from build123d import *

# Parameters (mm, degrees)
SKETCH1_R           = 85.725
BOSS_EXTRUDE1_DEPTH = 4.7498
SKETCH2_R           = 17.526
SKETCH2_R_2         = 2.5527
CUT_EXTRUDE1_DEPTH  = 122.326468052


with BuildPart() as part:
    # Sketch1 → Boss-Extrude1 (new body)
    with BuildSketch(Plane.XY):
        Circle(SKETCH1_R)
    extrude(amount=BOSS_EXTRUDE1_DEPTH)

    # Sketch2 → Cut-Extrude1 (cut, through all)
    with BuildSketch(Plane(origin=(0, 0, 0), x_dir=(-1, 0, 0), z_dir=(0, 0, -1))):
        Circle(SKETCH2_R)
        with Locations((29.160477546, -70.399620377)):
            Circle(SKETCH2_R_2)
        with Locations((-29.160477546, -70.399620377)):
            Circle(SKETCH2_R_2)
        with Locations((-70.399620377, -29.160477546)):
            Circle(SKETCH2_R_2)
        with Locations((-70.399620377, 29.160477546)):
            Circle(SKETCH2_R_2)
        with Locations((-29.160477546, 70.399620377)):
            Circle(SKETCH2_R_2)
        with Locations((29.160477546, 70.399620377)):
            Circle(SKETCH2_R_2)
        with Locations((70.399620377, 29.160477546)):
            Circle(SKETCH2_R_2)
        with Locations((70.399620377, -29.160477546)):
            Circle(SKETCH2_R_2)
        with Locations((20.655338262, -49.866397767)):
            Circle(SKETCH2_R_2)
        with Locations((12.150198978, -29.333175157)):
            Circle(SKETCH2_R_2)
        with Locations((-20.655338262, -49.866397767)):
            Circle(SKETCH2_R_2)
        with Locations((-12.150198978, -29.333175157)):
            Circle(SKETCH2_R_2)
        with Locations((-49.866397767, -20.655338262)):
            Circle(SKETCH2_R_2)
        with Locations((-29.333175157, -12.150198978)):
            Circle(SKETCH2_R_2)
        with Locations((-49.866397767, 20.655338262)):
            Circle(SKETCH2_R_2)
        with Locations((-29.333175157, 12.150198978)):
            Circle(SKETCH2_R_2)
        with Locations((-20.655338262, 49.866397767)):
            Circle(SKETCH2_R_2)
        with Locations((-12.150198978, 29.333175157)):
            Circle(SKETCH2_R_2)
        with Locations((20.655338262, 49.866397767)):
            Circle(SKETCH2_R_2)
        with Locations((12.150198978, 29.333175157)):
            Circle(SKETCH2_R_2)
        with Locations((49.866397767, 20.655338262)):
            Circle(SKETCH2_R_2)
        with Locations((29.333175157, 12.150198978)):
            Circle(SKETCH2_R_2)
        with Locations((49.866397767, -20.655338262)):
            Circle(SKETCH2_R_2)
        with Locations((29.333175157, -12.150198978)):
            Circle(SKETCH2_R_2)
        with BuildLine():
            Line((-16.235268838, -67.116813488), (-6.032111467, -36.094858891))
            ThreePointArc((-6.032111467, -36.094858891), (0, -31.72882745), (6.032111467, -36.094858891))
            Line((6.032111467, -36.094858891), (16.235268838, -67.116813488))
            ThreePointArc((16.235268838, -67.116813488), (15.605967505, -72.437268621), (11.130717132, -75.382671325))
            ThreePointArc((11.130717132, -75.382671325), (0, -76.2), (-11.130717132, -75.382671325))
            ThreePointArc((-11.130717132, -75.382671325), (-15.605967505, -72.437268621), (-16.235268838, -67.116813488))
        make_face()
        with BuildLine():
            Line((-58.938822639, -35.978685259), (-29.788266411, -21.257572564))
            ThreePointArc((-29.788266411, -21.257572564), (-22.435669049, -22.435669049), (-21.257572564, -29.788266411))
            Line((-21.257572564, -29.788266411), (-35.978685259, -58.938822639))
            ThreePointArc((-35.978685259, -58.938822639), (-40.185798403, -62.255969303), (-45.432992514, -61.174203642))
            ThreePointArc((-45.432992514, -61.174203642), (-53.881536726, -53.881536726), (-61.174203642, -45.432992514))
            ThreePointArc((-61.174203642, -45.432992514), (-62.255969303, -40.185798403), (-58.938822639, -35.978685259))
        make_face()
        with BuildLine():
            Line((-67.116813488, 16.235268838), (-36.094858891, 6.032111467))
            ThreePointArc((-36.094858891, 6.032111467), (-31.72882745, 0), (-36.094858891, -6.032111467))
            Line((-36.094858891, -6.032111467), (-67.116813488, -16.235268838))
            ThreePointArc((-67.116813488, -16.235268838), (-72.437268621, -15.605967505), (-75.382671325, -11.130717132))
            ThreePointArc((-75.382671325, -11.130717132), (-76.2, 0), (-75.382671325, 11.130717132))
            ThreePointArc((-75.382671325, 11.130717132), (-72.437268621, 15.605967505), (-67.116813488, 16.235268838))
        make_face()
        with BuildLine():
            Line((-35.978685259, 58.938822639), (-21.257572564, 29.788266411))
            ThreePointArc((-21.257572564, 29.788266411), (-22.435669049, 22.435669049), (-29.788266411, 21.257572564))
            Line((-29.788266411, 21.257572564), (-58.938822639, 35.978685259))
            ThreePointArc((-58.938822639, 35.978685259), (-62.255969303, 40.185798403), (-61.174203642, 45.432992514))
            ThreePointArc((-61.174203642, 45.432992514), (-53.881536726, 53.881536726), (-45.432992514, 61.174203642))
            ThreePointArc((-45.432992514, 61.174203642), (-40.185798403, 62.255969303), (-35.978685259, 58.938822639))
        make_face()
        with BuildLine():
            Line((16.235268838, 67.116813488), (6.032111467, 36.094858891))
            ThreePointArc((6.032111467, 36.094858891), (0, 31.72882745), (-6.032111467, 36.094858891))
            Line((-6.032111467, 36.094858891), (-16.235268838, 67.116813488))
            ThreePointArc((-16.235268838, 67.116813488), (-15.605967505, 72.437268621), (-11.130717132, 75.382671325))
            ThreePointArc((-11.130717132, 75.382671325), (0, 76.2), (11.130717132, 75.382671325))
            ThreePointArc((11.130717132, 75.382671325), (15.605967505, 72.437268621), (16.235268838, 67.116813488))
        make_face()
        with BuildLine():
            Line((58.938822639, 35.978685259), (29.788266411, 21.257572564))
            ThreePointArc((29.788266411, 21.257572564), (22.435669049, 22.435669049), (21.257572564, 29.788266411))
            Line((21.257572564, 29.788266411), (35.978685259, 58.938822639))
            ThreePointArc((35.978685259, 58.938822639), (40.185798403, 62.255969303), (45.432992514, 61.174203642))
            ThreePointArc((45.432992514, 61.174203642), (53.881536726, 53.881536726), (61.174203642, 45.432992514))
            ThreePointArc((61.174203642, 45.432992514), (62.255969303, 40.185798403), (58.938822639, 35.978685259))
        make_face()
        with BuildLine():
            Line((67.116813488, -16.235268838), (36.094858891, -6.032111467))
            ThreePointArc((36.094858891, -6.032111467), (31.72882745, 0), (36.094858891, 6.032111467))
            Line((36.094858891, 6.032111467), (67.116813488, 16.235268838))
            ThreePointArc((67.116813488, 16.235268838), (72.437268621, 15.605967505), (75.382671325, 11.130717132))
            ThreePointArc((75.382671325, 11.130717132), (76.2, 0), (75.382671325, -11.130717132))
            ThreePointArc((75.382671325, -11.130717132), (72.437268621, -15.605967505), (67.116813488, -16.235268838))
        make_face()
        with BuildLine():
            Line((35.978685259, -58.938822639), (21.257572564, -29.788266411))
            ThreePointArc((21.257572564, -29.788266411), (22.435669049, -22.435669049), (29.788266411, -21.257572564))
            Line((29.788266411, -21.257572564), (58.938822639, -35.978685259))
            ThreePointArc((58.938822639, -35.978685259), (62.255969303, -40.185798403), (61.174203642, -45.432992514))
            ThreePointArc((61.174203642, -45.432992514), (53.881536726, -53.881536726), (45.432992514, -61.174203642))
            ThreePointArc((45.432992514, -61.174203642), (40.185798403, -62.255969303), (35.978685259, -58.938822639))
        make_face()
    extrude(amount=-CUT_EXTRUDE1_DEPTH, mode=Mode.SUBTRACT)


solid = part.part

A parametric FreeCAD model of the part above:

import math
import FreeCAD as App
import Part
import Sketcher
Q = App.Units.Quantity

doc = App.newDocument("Part")
body = doc.addObject("PartDesign::Body", "Body")

# Sketch on XY plane
sketch1 = body.newObject("Sketcher::SketchObject", "Sketch")
sketch1.AttachmentSupport = (doc.getObject("XY_Plane"), [""])
sketch1.MapMode = "FlatFace"
sketch1.addGeometry(Part.Circle(App.Vector(0, 0, 0), App.Vector(0, 0, 1), 86), False)
sketch1.addConstraint([
    Sketcher.Constraint("Coincident", 0, 3, -1, 1),
    Sketcher.Constraint("Diameter", 0, Q("6.75 in")),
])
pad1 = body.newObject("PartDesign::Pad", "Pad")
pad1.Profile = sketch1
pad1.Length = Q("0.187 in")

# Sketch on XY plane
sketch2 = body.newObject("Sketcher::SketchObject", "Sketch001")
sketch2.AttachmentSupport = (doc.getObject("XY_Plane"), [""])
sketch2.MapMode = "FlatFace"
sketch2.addGeometry([
    Part.Circle(App.Vector(0, 0, 0), App.Vector(0, 0, 1), 17.526),  # 0
    Part.Circle(App.Vector(-29.160478, -70.39962, 0), App.Vector(0, 0, 1), 2.5527),  # 1
    Part.Circle(App.Vector(29.160478, -70.39962, 0), App.Vector(0, 0, 1), 2.5527),  # 2
    Part.Circle(App.Vector(70.39962, -29.160478, 0), App.Vector(0, 0, 1), 2.5527),  # 3
    Part.Circle(App.Vector(70.39962, 29.160478, 0), App.Vector(0, 0, 1), 2.5527),  # 4
    Part.Circle(App.Vector(29.160478, 70.39962, 0), App.Vector(0, 0, 1), 2.5527),  # 5
    Part.Circle(App.Vector(-29.160478, 70.39962, 0), App.Vector(0, 0, 1), 2.5527),  # 6
    Part.Circle(App.Vector(-70.39962, 29.160478, 0), App.Vector(0, 0, 1), 2.5527),  # 7
    Part.Circle(App.Vector(-70.39962, -29.160478, 0), App.Vector(0, 0, 1), 2.5527),  # 8
    Part.Circle(App.Vector(-20.655338, -49.866398, 0), App.Vector(0, 0, 1), 2.5527),  # 9
    Part.Circle(App.Vector(-12.150199, -29.333175, 0), App.Vector(0, 0, 1), 2.5527),  # 10
    Part.Circle(App.Vector(20.655338, -49.866398, 0), App.Vector(0, 0, 1), 2.5527),  # 11
    Part.Circle(App.Vector(12.150199, -29.333175, 0), App.Vector(0, 0, 1), 2.5527),  # 12
    Part.Circle(App.Vector(49.866398, -20.655338, 0), App.Vector(0, 0, 1), 2.5527),  # 13
    Part.Circle(App.Vector(29.333175, -12.150199, 0), App.Vector(0, 0, 1), 2.5527),  # 14
    Part.Circle(App.Vector(49.866398, 20.655338, 0), App.Vector(0, 0, 1), 2.5527),  # 15
    Part.Circle(App.Vector(29.333175, 12.150199, 0), App.Vector(0, 0, 1), 2.5527),  # 16
    Part.Circle(App.Vector(20.655338, 49.866398, 0), App.Vector(0, 0, 1), 2.5527),  # 17
    Part.Circle(App.Vector(12.150199, 29.333175, 0), App.Vector(0, 0, 1), 2.5527),  # 18
    Part.Circle(App.Vector(-20.655338, 49.866398, 0), App.Vector(0, 0, 1), 2.5527),  # 19
    Part.Circle(App.Vector(-12.150199, 29.333175, 0), App.Vector(0, 0, 1), 2.5527),  # 20
    Part.Circle(App.Vector(-49.866398, 20.655338, 0), App.Vector(0, 0, 1), 2.5527),  # 21
    Part.Circle(App.Vector(-29.333175, 12.150199, 0), App.Vector(0, 0, 1), 2.5527),  # 22
    Part.Circle(App.Vector(-49.866398, -20.655338, 0), App.Vector(0, 0, 1), 2.5527),  # 23
    Part.Circle(App.Vector(-29.333175, -12.150199, 0), App.Vector(0, 0, 1), 2.5527),  # 24
    Part.LineSegment(App.Vector(6.032111, -36.094859, 0), App.Vector(16.235269, -67.116813, 0)),  # 25
    Part.ArcOfCircle(Part.Circle(App.Vector(10.203157, -69.100782, 0), App.Vector(0, 0, 1), 6.35), math.radians(-81.600615), math.radians(18.206096)),  # 26
    Part.ArcOfCircle(Part.Circle(App.Vector(0, 0, 0), App.Vector(0, 0, 1), 76.2), math.radians(-98.399385), math.radians(-81.600615)),  # 27
    Part.ArcOfCircle(Part.Circle(App.Vector(-10.203157, -69.100782, 0), App.Vector(0, 0, 1), 6.35), math.radians(161.793904), math.radians(261.600615)),  # 28
    Part.LineSegment(App.Vector(-16.235269, -67.116813, 0), App.Vector(-6.032111, -36.094859, 0)),  # 29
    Part.ArcOfCircle(Part.Circle(App.Vector(0, -38.078827, 0), App.Vector(0, 0, 1), 6.35), math.radians(18.206096), math.radians(161.793904)),  # 30
    Part.LineSegment(App.Vector(29.788266, -21.257573, 0), App.Vector(58.938823, -35.978685, 0)),  # 31
    Part.ArcOfCircle(Part.Circle(App.Vector(56.076353, -41.64691, 0), App.Vector(0, 0, 1), 6.35), math.radians(-36.600615), math.radians(63.206096)),  # 32
    Part.ArcOfCircle(Part.Circle(App.Vector(0, 0, 0), App.Vector(0, 0, 1), 76.2), math.radians(-53.399385), math.radians(-36.600615)),  # 33
    Part.ArcOfCircle(Part.Circle(App.Vector(41.64691, -56.076353, 0), App.Vector(0, 0, 1), 6.35), math.radians(-153.206096), math.radians(-53.399385)),  # 34
    Part.LineSegment(App.Vector(35.978685, -58.938823, 0), App.Vector(21.257573, -29.788266, 0)),  # 35
    Part.ArcOfCircle(Part.Circle(App.Vector(26.925797, -26.925797, 0), App.Vector(0, 0, 1), 6.35), math.radians(63.206096), math.radians(206.793904)),  # 36
    Part.LineSegment(App.Vector(36.094859, 6.032111, 0), App.Vector(67.116813, 16.235269, 0)),  # 37
    Part.ArcOfCircle(Part.Circle(App.Vector(69.100782, 10.203157, 0), App.Vector(0, 0, 1), 6.35), math.radians(8.399385), math.radians(108.206096)),  # 38
    Part.ArcOfCircle(Part.Circle(App.Vector(0, 0, 0), App.Vector(0, 0, 1), 76.2), math.radians(-8.399385), math.radians(8.399385)),  # 39
    Part.ArcOfCircle(Part.Circle(App.Vector(69.100782, -10.203157, 0), App.Vector(0, 0, 1), 6.35), math.radians(-108.206096), math.radians(-8.399385)),  # 40
    Part.LineSegment(App.Vector(67.116813, -16.235269, 0), App.Vector(36.094859, -6.032111, 0)),  # 41
    Part.ArcOfCircle(Part.Circle(App.Vector(38.078827, 0, 0), App.Vector(0, 0, 1), 6.35), math.radians(108.206096), math.radians(251.793904)),  # 42
    Part.LineSegment(App.Vector(21.257573, 29.788266, 0), App.Vector(35.978685, 58.938823, 0)),  # 43
    Part.ArcOfCircle(Part.Circle(App.Vector(41.64691, 56.076353, 0), App.Vector(0, 0, 1), 6.35), math.radians(53.399385), math.radians(153.206096)),  # 44
    Part.ArcOfCircle(Part.Circle(App.Vector(0, 0, 0), App.Vector(0, 0, 1), 76.2), math.radians(36.600615), math.radians(53.399385)),  # 45
    Part.ArcOfCircle(Part.Circle(App.Vector(56.076353, 41.64691, 0), App.Vector(0, 0, 1), 6.35), math.radians(-63.206096), math.radians(36.600615)),  # 46
    Part.LineSegment(App.Vector(58.938823, 35.978685, 0), App.Vector(29.788266, 21.257573, 0)),  # 47
    Part.ArcOfCircle(Part.Circle(App.Vector(26.925797, 26.925797, 0), App.Vector(0, 0, 1), 6.35), math.radians(153.206096), math.radians(296.793904)),  # 48
    Part.LineSegment(App.Vector(-6.032111, 36.094859, 0), App.Vector(-16.235269, 67.116813, 0)),  # 49
    Part.ArcOfCircle(Part.Circle(App.Vector(-10.203157, 69.100782, 0), App.Vector(0, 0, 1), 6.35), math.radians(98.399385), math.radians(198.206096)),  # 50
    Part.ArcOfCircle(Part.Circle(App.Vector(0, 0, 0), App.Vector(0, 0, 1), 76.2), math.radians(81.600615), math.radians(98.399385)),  # 51
    Part.ArcOfCircle(Part.Circle(App.Vector(10.203157, 69.100782, 0), App.Vector(0, 0, 1), 6.35), math.radians(-18.206096), math.radians(81.600615)),  # 52
    Part.LineSegment(App.Vector(16.235269, 67.116813, 0), App.Vector(6.032111, 36.094859, 0)),  # 53
    Part.ArcOfCircle(Part.Circle(App.Vector(0, 38.078827, 0), App.Vector(0, 0, 1), 6.35), math.radians(-161.793904), math.radians(-18.206096)),  # 54
    Part.LineSegment(App.Vector(-29.788266, 21.257573, 0), App.Vector(-58.938823, 35.978685, 0)),  # 55
    Part.ArcOfCircle(Part.Circle(App.Vector(-56.076353, 41.64691, 0), App.Vector(0, 0, 1), 6.35), math.radians(143.399385), math.radians(243.206096)),  # 56
    Part.ArcOfCircle(Part.Circle(App.Vector(0, 0, 0), App.Vector(0, 0, 1), 76.2), math.radians(126.600615), math.radians(143.399385)),  # 57
    Part.ArcOfCircle(Part.Circle(App.Vector(-41.64691, 56.076353, 0), App.Vector(0, 0, 1), 6.35), math.radians(26.793904), math.radians(126.600615)),  # 58
    Part.LineSegment(App.Vector(-35.978685, 58.938823, 0), App.Vector(-21.257573, 29.788266, 0)),  # 59
    Part.ArcOfCircle(Part.Circle(App.Vector(-26.925797, 26.925797, 0), App.Vector(0, 0, 1), 6.35), math.radians(-116.793904), math.radians(26.793904)),  # 60
    Part.LineSegment(App.Vector(-36.094859, -6.032111, 0), App.Vector(-67.116813, -16.235269, 0)),  # 61
    Part.ArcOfCircle(Part.Circle(App.Vector(-69.100782, -10.203157, 0), App.Vector(0, 0, 1), 6.35), math.radians(-171.600615), math.radians(-71.793904)),  # 62
    Part.ArcOfCircle(Part.Circle(App.Vector(0, 0, 0), App.Vector(0, 0, 1), 76.2), math.radians(171.600615), math.radians(188.399385)),  # 63
    Part.ArcOfCircle(Part.Circle(App.Vector(-69.100782, 10.203157, 0), App.Vector(0, 0, 1), 6.35), math.radians(71.793904), math.radians(171.600615)),  # 64
    Part.LineSegment(App.Vector(-67.116813, 16.235269, 0), App.Vector(-36.094859, 6.032111, 0)),  # 65
    Part.ArcOfCircle(Part.Circle(App.Vector(-38.078827, 0, 0), App.Vector(0, 0, 1), 6.35), math.radians(-71.793904), math.radians(71.793904)),  # 66
    Part.LineSegment(App.Vector(-21.257573, -29.788266, 0), App.Vector(-35.978685, -58.938823, 0)),  # 67
    Part.ArcOfCircle(Part.Circle(App.Vector(-41.64691, -56.076353, 0), App.Vector(0, 0, 1), 6.35), math.radians(-126.600615), math.radians(-26.793904)),  # 68
    Part.ArcOfCircle(Part.Circle(App.Vector(0, 0, 0), App.Vector(0, 0, 1), 76.2), math.radians(-143.399385), math.radians(-126.600615)),  # 69
    Part.ArcOfCircle(Part.Circle(App.Vector(-56.076353, -41.64691, 0), App.Vector(0, 0, 1), 6.35), math.radians(116.793904), math.radians(216.600615)),  # 70
    Part.LineSegment(App.Vector(-58.938823, -35.978685, 0), App.Vector(-29.788266, -21.257573, 0)),  # 71
    Part.ArcOfCircle(Part.Circle(App.Vector(-26.925797, -26.925797, 0), App.Vector(0, 0, 1), 6.35), math.radians(-26.793904), math.radians(116.793904)),  # 72
], False)
sketch2.addConstraint([
    Sketcher.Constraint("Coincident", 25, 2, 26, 2),
    Sketcher.Constraint("Coincident", 26, 1, 27, 2),
    Sketcher.Constraint("Coincident", 27, 1, 28, 2),
    Sketcher.Constraint("Coincident", 28, 1, 29, 1),
    Sketcher.Constraint("Coincident", 29, 2, 30, 2),
    Sketcher.Constraint("Coincident", 30, 1, 25, 1),
    Sketcher.Constraint("Coincident", 31, 2, 32, 2),
    Sketcher.Constraint("Coincident", 32, 1, 33, 2),
    Sketcher.Constraint("Coincident", 33, 1, 34, 2),
    Sketcher.Constraint("Coincident", 34, 1, 35, 1),
    Sketcher.Constraint("Coincident", 35, 2, 36, 2),
    Sketcher.Constraint("Coincident", 36, 1, 31, 1),
    Sketcher.Constraint("Coincident", 37, 2, 38, 2),
    Sketcher.Constraint("Coincident", 38, 1, 39, 2),
    Sketcher.Constraint("Coincident", 39, 1, 40, 2),
    Sketcher.Constraint("Coincident", 40, 1, 41, 1),
    Sketcher.Constraint("Coincident", 41, 2, 42, 2),
    Sketcher.Constraint("Coincident", 42, 1, 37, 1),
    Sketcher.Constraint("Coincident", 43, 2, 44, 2),
    Sketcher.Constraint("Coincident", 44, 1, 45, 2),
    Sketcher.Constraint("Coincident", 45, 1, 46, 2),
    Sketcher.Constraint("Coincident", 46, 1, 47, 1),
    Sketcher.Constraint("Coincident", 47, 2, 48, 2),
    Sketcher.Constraint("Coincident", 48, 1, 43, 1),
    Sketcher.Constraint("Coincident", 49, 2, 50, 2),
    Sketcher.Constraint("Coincident", 50, 1, 51, 2),
    Sketcher.Constraint("Coincident", 51, 1, 52, 2),
    Sketcher.Constraint("Coincident", 52, 1, 53, 1),
    Sketcher.Constraint("Coincident", 53, 2, 54, 2),
    Sketcher.Constraint("Coincident", 54, 1, 49, 1),
    Sketcher.Constraint("Coincident", 55, 2, 56, 2),
    Sketcher.Constraint("Coincident", 56, 1, 57, 2),
    Sketcher.Constraint("Coincident", 57, 1, 58, 2),
    Sketcher.Constraint("Coincident", 58, 1, 59, 1),
    Sketcher.Constraint("Coincident", 59, 2, 60, 2),
    Sketcher.Constraint("Coincident", 60, 1, 55, 1),
    Sketcher.Constraint("Coincident", 61, 2, 62, 2),
    Sketcher.Constraint("Coincident", 62, 1, 63, 2),
    Sketcher.Constraint("Coincident", 63, 1, 64, 2),
    Sketcher.Constraint("Coincident", 64, 1, 65, 1),
    Sketcher.Constraint("Coincident", 65, 2, 66, 2),
    Sketcher.Constraint("Coincident", 66, 1, 61, 1),
    Sketcher.Constraint("Coincident", 67, 2, 68, 2),
    Sketcher.Constraint("Coincident", 68, 1, 69, 2),
    Sketcher.Constraint("Coincident", 69, 1, 70, 2),
    Sketcher.Constraint("Coincident", 70, 1, 71, 1),
    Sketcher.Constraint("Coincident", 71, 2, 72, 2),
    Sketcher.Constraint("Coincident", 72, 1, 67, 1),
    Sketcher.Constraint("Coincident", 0, 3, -1, 1),
    Sketcher.Constraint("Coincident", 27, 3, -1, 1),
    Sketcher.Constraint("Coincident", 33, 3, -1, 1),
    Sketcher.Constraint("Coincident", 39, 3, -1, 1),
    Sketcher.Constraint("Coincident", 45, 3, -1, 1),
    Sketcher.Constraint("Coincident", 51, 3, -1, 1),
    Sketcher.Constraint("Coincident", 57, 3, -1, 1),
    Sketcher.Constraint("Coincident", 63, 3, -1, 1),
    Sketcher.Constraint("Coincident", 69, 3, -1, 1),
    Sketcher.Constraint("PointOnObject", 30, 3, -2),
    Sketcher.Constraint("PointOnObject", 42, 3, -1),
    Sketcher.Constraint("PointOnObject", 54, 3, -2),
    Sketcher.Constraint("PointOnObject", 66, 3, -1),
    Sketcher.Constraint("Radius", 27, Q("3 in")),
    Sketcher.Constraint("Radius", 33, Q("3 in")),
    Sketcher.Constraint("Radius", 39, Q("3 in")),
    Sketcher.Constraint("Radius", 45, Q("3 in")),
    Sketcher.Constraint("Radius", 51, Q("3 in")),
    Sketcher.Constraint("Radius", 57, Q("3 in")),
    Sketcher.Constraint("Radius", 63, Q("3 in")),
    Sketcher.Constraint("Radius", 69, Q("3 in")),
    Sketcher.Constraint("Diameter", 0, Q("1.38 in")),
    Sketcher.Constraint("Radius", 26, Q("0.25 in")),
    Sketcher.Constraint("Radius", 28, Q("0.25 in")),
    Sketcher.Constraint("Radius", 30, Q("0.25 in")),
    Sketcher.Constraint("Radius", 32, Q("0.25 in")),
    Sketcher.Constraint("Radius", 34, Q("0.25 in")),
    Sketcher.Constraint("Radius", 36, Q("0.25 in")),
    Sketcher.Constraint("Radius", 38, Q("0.25 in")),
    Sketcher.Constraint("Radius", 40, Q("0.25 in")),
    Sketcher.Constraint("Radius", 42, Q("0.25 in")),
    Sketcher.Constraint("Radius", 44, Q("0.25 in")),
    Sketcher.Constraint("Radius", 46, Q("0.25 in")),
    Sketcher.Constraint("Radius", 48, Q("0.25 in")),
    Sketcher.Constraint("Radius", 50, Q("0.25 in")),
    Sketcher.Constraint("Radius", 52, Q("0.25 in")),
    Sketcher.Constraint("Radius", 54, Q("0.25 in")),
    Sketcher.Constraint("Radius", 56, Q("0.25 in")),
    Sketcher.Constraint("Radius", 58, Q("0.25 in")),
    Sketcher.Constraint("Radius", 60, Q("0.25 in")),
    Sketcher.Constraint("Radius", 62, Q("0.25 in")),
    Sketcher.Constraint("Radius", 64, Q("0.25 in")),
    Sketcher.Constraint("Radius", 66, Q("0.25 in")),
    Sketcher.Constraint("Radius", 68, Q("0.25 in")),
    Sketcher.Constraint("Radius", 70, Q("0.25 in")),
    Sketcher.Constraint("Radius", 72, Q("0.25 in")),
    Sketcher.Constraint("Diameter", 1, Q("0.201 in")),
    Sketcher.Constraint("Diameter", 2, Q("0.201 in")),
    Sketcher.Constraint("Diameter", 3, Q("0.201 in")),
    Sketcher.Constraint("Diameter", 4, Q("0.201 in")),
    Sketcher.Constraint("Diameter", 5, Q("0.201 in")),
    Sketcher.Constraint("Diameter", 6, Q("0.201 in")),
    Sketcher.Constraint("Diameter", 7, Q("0.201 in")),
    Sketcher.Constraint("Diameter", 8, Q("0.201 in")),
    Sketcher.Constraint("Diameter", 9, Q("0.201 in")),
    Sketcher.Constraint("Diameter", 10, Q("0.201 in")),
    Sketcher.Constraint("Diameter", 11, Q("0.201 in")),
    Sketcher.Constraint("Diameter", 12, Q("0.201 in")),
    Sketcher.Constraint("Diameter", 13, Q("0.201 in")),
    Sketcher.Constraint("Diameter", 14, Q("0.201 in")),
    Sketcher.Constraint("Diameter", 15, Q("0.201 in")),
    Sketcher.Constraint("Diameter", 16, Q("0.201 in")),
    Sketcher.Constraint("Diameter", 17, Q("0.201 in")),
    Sketcher.Constraint("Diameter", 18, Q("0.201 in")),
    Sketcher.Constraint("Diameter", 19, Q("0.201 in")),
    Sketcher.Constraint("Diameter", 20, Q("0.201 in")),
    Sketcher.Constraint("Diameter", 21, Q("0.201 in")),
    Sketcher.Constraint("Diameter", 22, Q("0.201 in")),
    Sketcher.Constraint("Diameter", 23, Q("0.201 in")),
    Sketcher.Constraint("Diameter", 24, Q("0.201 in")),
    Sketcher.Constraint("DistanceX", 10, 3, -1, 1, 12.150199),
    Sketcher.Constraint("DistanceX", -1, 1, 12, 3, 12.150199),
    Sketcher.Constraint("DistanceY", 14, 3, -1, 1, 12.150199),
    Sketcher.Constraint("DistanceY", -1, 1, 16, 3, 12.150199),
    Sketcher.Constraint("DistanceX", -1, 1, 18, 3, 12.150199),
    Sketcher.Constraint("DistanceX", 20, 3, -1, 1, 12.150199),
    Sketcher.Constraint("DistanceY", -1, 1, 22, 3, 12.150199),
    Sketcher.Constraint("DistanceY", 24, 3, -1, 1, 12.150199),
    Sketcher.Constraint("DistanceY", 1, 3, -1, 1, 70.39962),
    Sketcher.Constraint("DistanceY", 2, 3, -1, 1, 70.39962),
    Sketcher.Constraint("DistanceX", -1, 1, 3, 3, 70.39962),
    Sketcher.Constraint("DistanceX", -1, 1, 4, 3, 70.39962),
    Sketcher.Constraint("DistanceY", -1, 1, 5, 3, 70.39962),
    Sketcher.Constraint("DistanceY", -1, 1, 6, 3, 70.39962),
    Sketcher.Constraint("DistanceX", 7, 3, -1, 1, 70.39962),
    Sketcher.Constraint("DistanceX", 8, 3, -1, 1, 70.39962),
    Sketcher.Constraint("DistanceX", 9, 3, -1, 1, 20.655338),
    Sketcher.Constraint("DistanceX", -1, 1, 11, 3, 20.655338),
    Sketcher.Constraint("DistanceY", 13, 3, -1, 1, 20.655338),
    Sketcher.Constraint("DistanceY", -1, 1, 15, 3, 20.655338),
    Sketcher.Constraint("DistanceX", -1, 1, 17, 3, 20.655338),
    Sketcher.Constraint("DistanceX", 19, 3, -1, 1, 20.655338),
    Sketcher.Constraint("DistanceY", -1, 1, 21, 3, 20.655338),
    Sketcher.Constraint("DistanceY", 23, 3, -1, 1, 20.655338),
    Sketcher.Constraint("DistanceY", 32, 3, -1, 1, 41.64691),
    Sketcher.Constraint("DistanceX", -1, 1, 34, 3, 41.64691),
    Sketcher.Constraint("DistanceX", -1, 1, 44, 3, 41.64691),
    Sketcher.Constraint("DistanceY", -1, 1, 46, 3, 41.64691),
    Sketcher.Constraint("DistanceY", -1, 1, 56, 3, 41.64691),
    Sketcher.Constraint("DistanceX", 58, 3, -1, 1, 41.64691),
    Sketcher.Constraint("DistanceX", 68, 3, -1, 1, 41.64691),
    Sketcher.Constraint("DistanceY", 70, 3, -1, 1, 41.64691),
    Sketcher.Constraint("DistanceX", -1, 1, 25, 2, 16.235269),
    Sketcher.Constraint("DistanceY", 26, 1, -1, 1, 75.382671),
    Sketcher.Constraint("DistanceY", 27, 1, -1, 1, 75.382671),
    Sketcher.Constraint("DistanceX", 28, 1, -1, 1, 16.235269),
    Sketcher.Constraint("DistanceX", 29, 2, -1, 1, 6.032111),
    Sketcher.Constraint("DistanceY", 29, 2, -1, 1, 36.094859),
    Sketcher.Constraint("DistanceX", -1, 1, 30, 1, 6.032111),
    Sketcher.Constraint("DistanceY", -1, 1, 37, 2, 16.235269),
    Sketcher.Constraint("DistanceX", -1, 1, 38, 1, 75.382671),
    Sketcher.Constraint("DistanceX", -1, 1, 39, 1, 75.382671),
    Sketcher.Constraint("DistanceY", 40, 1, -1, 1, 16.235269),
    Sketcher.Constraint("DistanceX", -1, 1, 41, 2, 36.094859),
    Sketcher.Constraint("DistanceY", 41, 2, -1, 1, 6.032111),
    Sketcher.Constraint("DistanceX", -1, 1, 42, 1, 36.094859),
    Sketcher.Constraint("DistanceX", 49, 2, -1, 1, 16.235269),
    Sketcher.Constraint("DistanceY", -1, 1, 50, 1, 75.382671),
    Sketcher.Constraint("DistanceY", -1, 1, 51, 1, 75.382671),
    Sketcher.Constraint("DistanceX", -1, 1, 52, 1, 16.235269),
    Sketcher.Constraint("DistanceX", -1, 1, 53, 2, 6.032111),
    Sketcher.Constraint("DistanceY", -1, 1, 53, 2, 36.094859),
    Sketcher.Constraint("DistanceX", 54, 1, -1, 1, 6.032111),
    Sketcher.Constraint("DistanceY", 61, 2, -1, 1, 16.235269),
    Sketcher.Constraint("DistanceX", 62, 1, -1, 1, 75.382671),
    Sketcher.Constraint("DistanceX", 63, 1, -1, 1, 75.382671),
    Sketcher.Constraint("DistanceY", -1, 1, 64, 1, 16.235269),
    Sketcher.Constraint("DistanceX", 65, 2, -1, 1, 36.094859),
    Sketcher.Constraint("DistanceY", -1, 1, 65, 2, 6.032111),
    Sketcher.Constraint("DistanceX", 66, 1, -1, 1, 36.094859),
    Sketcher.Constraint("Distance", 25, 32.656792),
    Sketcher.Constraint("Distance", 29, 32.656792),
    Sketcher.Constraint("Distance", 31, 32.656792),
    Sketcher.Constraint("Distance", 35, 32.656792),
    Sketcher.Constraint("Distance", 37, 32.656792),
    Sketcher.Constraint("Distance", 41, 32.656792),
    Sketcher.Constraint("Distance", 43, 32.656792),
    Sketcher.Constraint("Distance", 47, 32.656792),
    Sketcher.Constraint("Distance", 49, 32.656792),
    Sketcher.Constraint("Distance", 53, 32.656792),
    Sketcher.Constraint("Distance", 55, 32.656792),
    Sketcher.Constraint("Distance", 59, 32.656792),
    Sketcher.Constraint("Distance", 61, 32.656792),
    Sketcher.Constraint("Distance", 65, 32.656792),
    Sketcher.Constraint("Distance", 67, 32.656792),
    Sketcher.Constraint("Distance", 71, 32.656792),
    Sketcher.Constraint("DistanceX", 1, 3, -1, 1, 29.160478),
    Sketcher.Constraint("DistanceX", -1, 1, 2, 3, 29.160478),
    Sketcher.Constraint("DistanceY", 3, 3, -1, 1, 29.160478),
    Sketcher.Constraint("DistanceY", -1, 1, 4, 3, 29.160478),
    Sketcher.Constraint("DistanceX", -1, 1, 5, 3, 29.160478),
    Sketcher.Constraint("DistanceX", 6, 3, -1, 1, 29.160478),
    Sketcher.Constraint("DistanceY", -1, 1, 7, 3, 29.160478),
    Sketcher.Constraint("DistanceY", 8, 3, -1, 1, 29.160478),
    Sketcher.Constraint("DistanceY", 9, 3, -1, 1, 49.866398),
    Sketcher.Constraint("DistanceY", 10, 3, -1, 1, 29.333175),
    Sketcher.Constraint("DistanceY", 11, 3, -1, 1, 49.866398),
    Sketcher.Constraint("DistanceY", 12, 3, -1, 1, 29.333175),
    Sketcher.Constraint("DistanceX", -1, 1, 13, 3, 49.866398),
    Sketcher.Constraint("DistanceX", -1, 1, 14, 3, 29.333175),
    Sketcher.Constraint("DistanceX", -1, 1, 15, 3, 49.866398),
    Sketcher.Constraint("DistanceX", -1, 1, 16, 3, 29.333175),
    Sketcher.Constraint("DistanceY", -1, 1, 17, 3, 49.866398),
    Sketcher.Constraint("DistanceY", -1, 1, 18, 3, 29.333175),
    Sketcher.Constraint("DistanceY", -1, 1, 19, 3, 49.866398),
    Sketcher.Constraint("DistanceY", -1, 1, 20, 3, 29.333175),
    Sketcher.Constraint("DistanceX", 21, 3, -1, 1, 49.866398),
    Sketcher.Constraint("DistanceX", 22, 3, -1, 1, 29.333175),
    Sketcher.Constraint("DistanceX", 23, 3, -1, 1, 49.866398),
    Sketcher.Constraint("DistanceX", 24, 3, -1, 1, 29.333175),
    Sketcher.Constraint("DistanceX", -1, 1, 36, 3, 26.925797),
    Sketcher.Constraint("DistanceY", 36, 3, -1, 1, 26.925797),
    Sketcher.Constraint("DistanceX", -1, 1, 48, 3, 26.925797),
    Sketcher.Constraint("DistanceY", -1, 1, 48, 3, 26.925797),
    Sketcher.Constraint("DistanceX", 60, 3, -1, 1, 26.925797),
    Sketcher.Constraint("DistanceY", -1, 1, 60, 3, 26.925797),
    Sketcher.Constraint("DistanceX", 72, 3, -1, 1, 26.925797),
    Sketcher.Constraint("DistanceY", 72, 3, -1, 1, 26.925797),
    Sketcher.Constraint("DistanceX", -1, 1, 31, 2, 58.938823),
    Sketcher.Constraint("DistanceX", -1, 1, 32, 1, 61.174204),
    Sketcher.Constraint("DistanceX", -1, 1, 33, 1, 45.432993),
    Sketcher.Constraint("DistanceX", -1, 1, 34, 1, 35.978685),
    Sketcher.Constraint("DistanceX", -1, 1, 43, 2, 35.978685),
    Sketcher.Constraint("DistanceX", -1, 1, 44, 1, 45.432993),
    Sketcher.Constraint("DistanceX", -1, 1, 45, 1, 61.174204),
    Sketcher.Constraint("DistanceX", -1, 1, 46, 1, 58.938823),
    Sketcher.Constraint("DistanceX", 55, 2, -1, 1, 58.938823),
    Sketcher.Constraint("DistanceX", 56, 1, -1, 1, 61.174204),
    Sketcher.Constraint("DistanceX", 57, 1, -1, 1, 45.432993),
    Sketcher.Constraint("DistanceX", 58, 1, -1, 1, 35.978685),
    Sketcher.Constraint("DistanceX", 67, 2, -1, 1, 35.978685),
    Sketcher.Constraint("DistanceX", 68, 1, -1, 1, 45.432993),
    Sketcher.Constraint("DistanceX", 69, 1, -1, 1, 61.174204),
    Sketcher.Constraint("DistanceX", 70, 1, -1, 1, 58.938823),
])
pocket1 = body.newObject("PartDesign::Pocket", "Pocket")
pocket1.Profile = sketch2
pocket1.Type = "ThroughAll"
pocket1.Reversed = True

doc.recompute()
